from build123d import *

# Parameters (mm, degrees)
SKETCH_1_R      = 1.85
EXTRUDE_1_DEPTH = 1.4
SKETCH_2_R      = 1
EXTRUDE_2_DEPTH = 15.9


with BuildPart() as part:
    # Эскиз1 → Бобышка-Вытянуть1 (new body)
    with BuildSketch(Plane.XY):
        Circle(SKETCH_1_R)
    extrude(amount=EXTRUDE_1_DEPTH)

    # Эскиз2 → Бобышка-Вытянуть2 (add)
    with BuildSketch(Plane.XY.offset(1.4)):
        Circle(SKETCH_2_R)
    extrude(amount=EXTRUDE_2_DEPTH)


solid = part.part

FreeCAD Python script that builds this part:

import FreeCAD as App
import Part
import Sketcher

doc = App.newDocument("Part")
body = doc.addObject("PartDesign::Body", "Body")

sketch1 = doc.addObject("Sketcher::SketchObject", "Sketch")
body.addObject(sketch1)
sketch1.AttachmentSupport = (doc.XY_Plane, [""])
sketch1.MapMode = "FlatFace"
sketch1.addGeometry(Part.Circle(App.Vector(0, 0, 0), App.Vector(0, 0, 1), 1.9), False)
sketch1.addConstraint(Sketcher.Constraint("Coincident", 0, 3, -1, 1))
sketch1.addConstraint(Sketcher.Constraint("Diameter", 0, 3.7))
pad1 = doc.addObject("PartDesign::Pad", "Pad")
body.addObject(pad1)
pad1.Profile = sketch1
pad1.Length = 1.4

sketch2 = doc.addObject("Sketcher::SketchObject", "Sketch001")
body.addObject(sketch2)
sketch2.AttachmentSupport = (doc.XY_Plane, [""])
sketch2.MapMode = "FlatFace"
sketch2.AttachmentOffset = App.Placement(App.Vector(0, 0, 1.4), App.Rotation())
sketch2.addGeometry(Part.Circle(App.Vector(0, 0, 0), App.Vector(0, 0, 1), 1), False)
sketch2.addConstraint(Sketcher.Constraint("Coincident", 0, 3, -1, 1))
sketch2.addConstraint(Sketcher.Constraint("Diameter", 0, 2.0))
pad2 = doc.addObject("PartDesign::Pad", "Pad001")
body.addObject(pad2)
pad2.Profile = sketch2
pad2.Length = 15.9

doc.recompute()
